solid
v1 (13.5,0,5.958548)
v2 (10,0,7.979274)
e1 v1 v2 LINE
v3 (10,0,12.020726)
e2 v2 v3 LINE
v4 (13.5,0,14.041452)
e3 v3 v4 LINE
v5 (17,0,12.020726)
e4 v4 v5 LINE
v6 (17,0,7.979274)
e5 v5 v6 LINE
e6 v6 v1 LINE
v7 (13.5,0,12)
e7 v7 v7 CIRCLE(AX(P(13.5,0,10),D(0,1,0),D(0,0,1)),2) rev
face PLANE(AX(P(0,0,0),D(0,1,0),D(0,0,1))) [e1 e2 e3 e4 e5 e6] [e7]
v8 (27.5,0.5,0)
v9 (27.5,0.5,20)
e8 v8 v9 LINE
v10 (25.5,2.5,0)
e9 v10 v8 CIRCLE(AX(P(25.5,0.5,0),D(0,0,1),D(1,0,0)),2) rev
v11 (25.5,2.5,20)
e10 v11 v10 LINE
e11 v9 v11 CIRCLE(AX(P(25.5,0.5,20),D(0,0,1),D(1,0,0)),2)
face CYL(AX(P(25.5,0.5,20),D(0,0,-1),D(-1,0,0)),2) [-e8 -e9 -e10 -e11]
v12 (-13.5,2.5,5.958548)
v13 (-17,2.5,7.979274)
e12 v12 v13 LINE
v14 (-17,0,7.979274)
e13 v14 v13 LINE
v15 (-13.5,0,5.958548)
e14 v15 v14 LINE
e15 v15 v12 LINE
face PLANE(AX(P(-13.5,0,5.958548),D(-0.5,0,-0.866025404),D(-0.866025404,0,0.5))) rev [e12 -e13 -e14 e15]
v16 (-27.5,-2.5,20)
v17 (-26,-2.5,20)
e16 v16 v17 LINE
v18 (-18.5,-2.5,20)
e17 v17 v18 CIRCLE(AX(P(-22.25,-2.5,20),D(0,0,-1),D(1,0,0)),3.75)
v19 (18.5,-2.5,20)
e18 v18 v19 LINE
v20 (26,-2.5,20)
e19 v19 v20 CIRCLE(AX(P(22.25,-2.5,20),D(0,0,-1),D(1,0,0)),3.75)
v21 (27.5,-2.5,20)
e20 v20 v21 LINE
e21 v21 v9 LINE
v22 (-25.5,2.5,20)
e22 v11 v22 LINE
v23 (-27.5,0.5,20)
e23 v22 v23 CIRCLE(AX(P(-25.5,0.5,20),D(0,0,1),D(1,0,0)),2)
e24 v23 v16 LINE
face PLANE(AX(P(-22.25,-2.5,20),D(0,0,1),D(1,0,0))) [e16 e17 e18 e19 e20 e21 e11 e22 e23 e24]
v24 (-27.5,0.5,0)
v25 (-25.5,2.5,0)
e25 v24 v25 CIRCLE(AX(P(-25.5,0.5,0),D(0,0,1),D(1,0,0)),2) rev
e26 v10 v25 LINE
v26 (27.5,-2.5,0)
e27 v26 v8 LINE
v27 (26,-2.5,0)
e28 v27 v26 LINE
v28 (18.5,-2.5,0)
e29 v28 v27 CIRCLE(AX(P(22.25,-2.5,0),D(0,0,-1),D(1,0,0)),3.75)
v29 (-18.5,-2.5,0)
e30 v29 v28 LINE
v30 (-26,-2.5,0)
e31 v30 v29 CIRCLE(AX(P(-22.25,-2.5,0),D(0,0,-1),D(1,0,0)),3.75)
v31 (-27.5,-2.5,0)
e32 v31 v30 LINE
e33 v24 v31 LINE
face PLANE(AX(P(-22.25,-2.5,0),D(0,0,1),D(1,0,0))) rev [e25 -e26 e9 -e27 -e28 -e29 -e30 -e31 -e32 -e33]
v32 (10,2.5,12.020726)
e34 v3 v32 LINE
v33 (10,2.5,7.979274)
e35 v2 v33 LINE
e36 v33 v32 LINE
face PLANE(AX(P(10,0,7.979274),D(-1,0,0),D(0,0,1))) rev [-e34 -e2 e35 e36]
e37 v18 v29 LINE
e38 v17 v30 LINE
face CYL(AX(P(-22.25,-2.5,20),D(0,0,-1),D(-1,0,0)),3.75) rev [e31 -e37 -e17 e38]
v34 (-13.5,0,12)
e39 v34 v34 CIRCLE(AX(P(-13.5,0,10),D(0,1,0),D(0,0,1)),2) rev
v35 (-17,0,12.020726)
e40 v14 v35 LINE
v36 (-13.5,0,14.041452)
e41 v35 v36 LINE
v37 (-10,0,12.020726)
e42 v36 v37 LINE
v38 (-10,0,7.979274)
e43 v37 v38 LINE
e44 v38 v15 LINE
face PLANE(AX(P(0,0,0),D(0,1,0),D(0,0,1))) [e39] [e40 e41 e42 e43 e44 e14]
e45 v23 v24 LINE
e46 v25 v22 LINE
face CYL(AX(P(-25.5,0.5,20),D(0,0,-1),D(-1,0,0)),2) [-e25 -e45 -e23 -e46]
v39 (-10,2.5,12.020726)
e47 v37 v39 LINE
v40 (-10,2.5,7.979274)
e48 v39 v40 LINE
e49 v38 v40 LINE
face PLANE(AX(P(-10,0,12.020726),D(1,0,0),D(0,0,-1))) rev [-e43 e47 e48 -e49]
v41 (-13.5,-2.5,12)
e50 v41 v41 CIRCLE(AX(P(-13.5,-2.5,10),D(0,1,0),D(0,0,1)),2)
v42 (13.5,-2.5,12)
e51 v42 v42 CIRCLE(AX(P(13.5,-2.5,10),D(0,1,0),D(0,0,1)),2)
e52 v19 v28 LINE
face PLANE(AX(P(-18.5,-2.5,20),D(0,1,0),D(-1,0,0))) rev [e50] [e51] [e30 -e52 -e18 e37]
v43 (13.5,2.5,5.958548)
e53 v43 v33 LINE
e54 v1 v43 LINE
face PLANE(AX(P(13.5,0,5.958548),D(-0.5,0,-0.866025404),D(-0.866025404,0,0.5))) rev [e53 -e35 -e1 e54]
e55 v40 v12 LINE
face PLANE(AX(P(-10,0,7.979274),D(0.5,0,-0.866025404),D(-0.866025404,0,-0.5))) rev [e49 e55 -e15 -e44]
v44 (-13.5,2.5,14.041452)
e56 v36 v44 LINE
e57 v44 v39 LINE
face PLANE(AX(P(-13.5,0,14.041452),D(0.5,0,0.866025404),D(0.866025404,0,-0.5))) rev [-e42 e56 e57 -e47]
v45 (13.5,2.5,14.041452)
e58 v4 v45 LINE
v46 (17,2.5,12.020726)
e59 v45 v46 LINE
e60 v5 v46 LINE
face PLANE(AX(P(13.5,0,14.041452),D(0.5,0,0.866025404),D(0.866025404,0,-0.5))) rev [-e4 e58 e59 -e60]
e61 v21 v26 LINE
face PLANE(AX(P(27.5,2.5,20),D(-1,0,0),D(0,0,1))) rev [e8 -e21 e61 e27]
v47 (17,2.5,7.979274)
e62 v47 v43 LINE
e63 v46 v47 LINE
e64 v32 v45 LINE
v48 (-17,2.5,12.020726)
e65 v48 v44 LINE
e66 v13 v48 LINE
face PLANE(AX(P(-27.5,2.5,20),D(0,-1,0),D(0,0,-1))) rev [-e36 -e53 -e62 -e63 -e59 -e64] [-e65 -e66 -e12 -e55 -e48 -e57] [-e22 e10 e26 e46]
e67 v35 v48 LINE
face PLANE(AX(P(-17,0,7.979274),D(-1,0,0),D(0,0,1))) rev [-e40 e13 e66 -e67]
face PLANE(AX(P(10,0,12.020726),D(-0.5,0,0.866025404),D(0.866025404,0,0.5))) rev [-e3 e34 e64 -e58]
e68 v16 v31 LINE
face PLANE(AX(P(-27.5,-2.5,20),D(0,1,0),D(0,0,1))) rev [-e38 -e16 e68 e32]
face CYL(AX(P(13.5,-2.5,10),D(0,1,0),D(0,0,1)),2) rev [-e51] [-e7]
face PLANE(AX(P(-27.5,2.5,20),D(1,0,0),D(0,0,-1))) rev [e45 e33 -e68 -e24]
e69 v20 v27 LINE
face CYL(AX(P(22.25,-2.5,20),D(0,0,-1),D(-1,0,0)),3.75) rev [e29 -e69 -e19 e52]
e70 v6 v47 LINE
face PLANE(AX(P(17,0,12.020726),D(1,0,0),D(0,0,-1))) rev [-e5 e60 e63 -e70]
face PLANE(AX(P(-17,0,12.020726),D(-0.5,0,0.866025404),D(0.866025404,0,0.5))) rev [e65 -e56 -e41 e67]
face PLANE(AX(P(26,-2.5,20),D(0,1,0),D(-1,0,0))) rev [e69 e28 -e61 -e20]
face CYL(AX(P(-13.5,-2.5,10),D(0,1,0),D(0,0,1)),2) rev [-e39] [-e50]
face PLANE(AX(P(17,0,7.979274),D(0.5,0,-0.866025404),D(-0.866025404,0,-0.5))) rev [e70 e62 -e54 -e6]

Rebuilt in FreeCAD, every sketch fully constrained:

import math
import FreeCAD as App
import Part
import Sketcher
Q = App.Units.Quantity


def edges_at(feature, points):
    """Names of the edges that pass closest to the given points."""
    edges = feature.Shape.Edges
    near = lambda p: min(range(len(edges)), key=lambda i: edges[i].distToShape(Part.Vertex(*p))[0])
    return sorted({f"Edge{near(p) + 1}" for p in points})

doc = App.newDocument("Part")
body = doc.addObject("PartDesign::Body", "Body")

# Sketch on XY plane
sketch1 = body.newObject("Sketcher::SketchObject", "Sketch")
sketch1.AttachmentSupport = (doc.getObject("XY_Plane"), [""])
sketch1.MapMode = "FlatFace"
sketch1.addGeometry([
    Part.LineSegment(App.Vector(-18.5, -2.5, 0), App.Vector(18.5, -2.5, 0)),  # 0
    Part.ArcOfCircle(Part.Circle(App.Vector(22.25, -2.5, 0), App.Vector(0, 0, 1), 3.75), math.radians(0), math.radians(180)),  # 1
    Part.LineSegment(App.Vector(26, -2.5, 0), App.Vector(27.5, -2.5, 0)),  # 2
    Part.LineSegment(App.Vector(27.5, -2.5, 0), App.Vector(27.5, 2.5, 0)),  # 3
    Part.LineSegment(App.Vector(27.5, 2.5, 0), App.Vector(-27.5, 2.5, 0)),  # 4
    Part.LineSegment(App.Vector(-27.5, 2.5, 0), App.Vector(-27.5, -2.5, 0)),  # 5
    Part.LineSegment(App.Vector(-27.5, -2.5, 0), App.Vector(-26, -2.5, 0)),  # 6
    Part.ArcOfCircle(Part.Circle(App.Vector(-22.25, -2.5, 0), App.Vector(0, 0, 1), 3.75), math.radians(0), math.radians(180)),  # 7
], False)
sketch1.addConstraint([
    Sketcher.Constraint("Coincident", 0, 2, 1, 2),
    Sketcher.Constraint("Coincident", 1, 1, 2, 1),
    Sketcher.Constraint("Coincident", 2, 2, 3, 1),
    Sketcher.Constraint("Coincident", 3, 2, 4, 1),
    Sketcher.Constraint("Coincident", 4, 2, 5, 1),
    Sketcher.Constraint("Coincident", 5, 2, 6, 1),
    Sketcher.Constraint("Coincident", 6, 2, 7, 2),
    Sketcher.Constraint("Coincident", 7, 1, 0, 1),
    Sketcher.Constraint("Horizontal", 0),
    Sketcher.Constraint("Horizontal", 2),
    Sketcher.Constraint("Vertical", 3),
    Sketcher.Constraint("Horizontal", 4),
    Sketcher.Constraint("Vertical", 5),
    Sketcher.Constraint("Horizontal", 6),
    Sketcher.Constraint("Equal", 1, 7),
    Sketcher.Constraint("Symmetric", 2, 2, 4, 2, -1, 1),
    Sketcher.Constraint("Symmetric", 1, 3, 7, 3, -2),
    Sketcher.Constraint("Horizontal", 7, 3, 0, 2),
    Sketcher.Constraint("Horizontal", 0, 2, 1, 1),
    Sketcher.Constraint("Horizontal", 2, 2, 5, 2),
    Sketcher.Constraint("DistanceX", 0, 1, 0, 2, 37.0),
    Sketcher.Constraint("DistanceX", 4, 2, 4, 1, 55.0),
    Sketcher.Constraint("DistanceY", 3, 1, 3, 2, 5.0),
    Sketcher.Constraint("Radius", 1, 3.75),
])
pad1 = body.newObject("PartDesign::Pad", "Pad")
pad1.Profile = sketch1
pad1.Length = 20
doc.recompute()

fillet = body.newObject("PartDesign::Fillet", "Fillet")
fillet.Base = (pad1, edges_at(pad1, [(-27.5, 2.5, 10), (27.5, 2.5, 10)]))
fillet.Radius = 2

# Sketch on XZ plane
sketch2 = body.newObject("Sketcher::SketchObject", "Sketch001")
sketch2.AttachmentSupport = (doc.getObject("XZ_Plane"), [""])
sketch2.MapMode = "FlatFace"
sketch2.AttachmentOffset = App.Placement(App.Vector(0, 0, -2.5), App.Rotation())
sketch2.addGeometry([
    Part.Circle(App.Vector(13.5, 10, 0), App.Vector(0, 0, 1), 2),
    Part.Circle(App.Vector(-13.5, 10, 0), App.Vector(0, 0, 1), 2),
], False)
sketch2.addConstraint([
    Sketcher.Constraint("Equal", 0, 1),
    Sketcher.Constraint("Symmetric", 0, 3, 1, 3, -2),
    Sketcher.Constraint("Diameter", 0, 4.0),
    Sketcher.Constraint("DistanceY", -1, 1, 0, 3, 10.0),
    Sketcher.Constraint("DistanceX", 1, 3, 0, 3, 27.0),
])
pocket1 = body.newObject("PartDesign::Pocket", "Pocket")
pocket1.Profile = sketch2
pocket1.Type = "ThroughAll"
pocket1.Reversed = True

# Sketch on XZ plane
sketch3 = body.newObject("Sketcher::SketchObject", "Sketch002")
sketch3.AttachmentSupport = (doc.getObject("XZ_Plane"), [""])
sketch3.MapMode = "FlatFace"
sketch3.AttachmentOffset = App.Placement(App.Vector(0, 0, -2.5), App.Rotation())
sketch3.addGeometry([
    Part.LineSegment(App.Vector(13.5, 5.958548, 0), App.Vector(10, 7.979274, 0)),  # 0
    Part.LineSegment(App.Vector(10, 7.979274, 0), App.Vector(10, 12.020726, 0)),  # 1
    Part.LineSegment(App.Vector(10, 12.020726, 0), App.Vector(13.5, 14.041452, 0)),  # 2
    Part.LineSegment(App.Vector(13.5, 14.041452, 0), App.Vector(17, 12.020726, 0)),  # 3
    Part.LineSegment(App.Vector(17, 12.020726, 0), App.Vector(17, 7.979274, 0)),  # 4
    Part.LineSegment(App.Vector(17, 7.979274, 0), App.Vector(13.5, 5.958548, 0)),  # 5
    Part.LineSegment(App.Vector(-13.5, 5.958548, 0), App.Vector(-17, 7.979274, 0)),  # 6
    Part.LineSegment(App.Vector(-17, 7.979274, 0), App.Vector(-17, 12.020726, 0)),  # 7
    Part.LineSegment(App.Vector(-17, 12.020726, 0), App.Vector(-13.5, 14.041452, 0)),  # 8
    Part.LineSegment(App.Vector(-13.5, 14.041452, 0), App.Vector(-10, 12.020726, 0)),  # 9
    Part.LineSegment(App.Vector(-10, 12.020726, 0), App.Vector(-10, 7.979274, 0)),  # 10
    Part.LineSegment(App.Vector(-10, 7.979274, 0), App.Vector(-13.5, 5.958548, 0)),  # 11
], False)
sketch3.addConstraint([
    Sketcher.Constraint("Coincident", 0, 2, 1, 1),
    Sketcher.Constraint("Coincident", 1, 2, 2, 1),
    Sketcher.Constraint("Coincident", 2, 2, 3, 1),
    Sketcher.Constraint("Coincident", 3, 2, 4, 1),
    Sketcher.Constraint("Coincident", 4, 2, 5, 1),
    Sketcher.Constraint("Coincident", 5, 2, 0, 1),
    Sketcher.Constraint("Coincident", 6, 2, 7, 1),
    Sketcher.Constraint("Coincident", 7, 2, 8, 1),
    Sketcher.Constraint("Coincident", 8, 2, 9, 1),
    Sketcher.Constraint("Coincident", 9, 2, 10, 1),
    Sketcher.Constraint("Coincident", 10, 2, 11, 1),
    Sketcher.Constraint("Coincident", 11, 2, 6, 1),
    Sketcher.Constraint("Vertical", 1),
    Sketcher.Constraint("Vertical", 4),
    Sketcher.Constraint("Vertical", 7),
    Sketcher.Constraint("Vertical", 10),
    Sketcher.Constraint("Symmetric", 4, 2, 6, 2, -2),
    Sketcher.Constraint("Symmetric", 2, 2, 8, 2, -2),
    Sketcher.Constraint("Symmetric", 1, 2, 9, 2, -2),
    Sketcher.Constraint("Symmetric", 5, 2, 11, 2, -2),
    Sketcher.Constraint("Parallel", 0, 3),
    Sketcher.Constraint("Parallel", 2, 5),
    Sketcher.Constraint("Parallel", 3, 6),
    Sketcher.Constraint("Parallel", 5, 8),
    Sketcher.Constraint("Parallel", 8, 11),
    Sketcher.Constraint("Horizontal", 1, 2, 3, 2),
    Sketcher.Constraint("Horizontal", 0, 2, 4, 2),
    Sketcher.Constraint("Angle", 0, Q("150 deg")),
    Sketcher.Constraint("DistanceX", -1, 1, 0, 2, 10.0),
    Sketcher.Constraint("DistanceX", -1, 1, 3, 2, 17.0),
    Sketcher.Constraint("DistanceY", 1, 1, 1, 2, 4.041452),
    Sketcher.Constraint("DistanceY", -1, 1, 2, 2, 14.041452),
])
pocket2 = body.newObject("PartDesign::Pocket", "Pocket001")
pocket2.Profile = sketch3
pocket2.Length = 2.5
pocket2.Reversed = True

doc.recompute()
